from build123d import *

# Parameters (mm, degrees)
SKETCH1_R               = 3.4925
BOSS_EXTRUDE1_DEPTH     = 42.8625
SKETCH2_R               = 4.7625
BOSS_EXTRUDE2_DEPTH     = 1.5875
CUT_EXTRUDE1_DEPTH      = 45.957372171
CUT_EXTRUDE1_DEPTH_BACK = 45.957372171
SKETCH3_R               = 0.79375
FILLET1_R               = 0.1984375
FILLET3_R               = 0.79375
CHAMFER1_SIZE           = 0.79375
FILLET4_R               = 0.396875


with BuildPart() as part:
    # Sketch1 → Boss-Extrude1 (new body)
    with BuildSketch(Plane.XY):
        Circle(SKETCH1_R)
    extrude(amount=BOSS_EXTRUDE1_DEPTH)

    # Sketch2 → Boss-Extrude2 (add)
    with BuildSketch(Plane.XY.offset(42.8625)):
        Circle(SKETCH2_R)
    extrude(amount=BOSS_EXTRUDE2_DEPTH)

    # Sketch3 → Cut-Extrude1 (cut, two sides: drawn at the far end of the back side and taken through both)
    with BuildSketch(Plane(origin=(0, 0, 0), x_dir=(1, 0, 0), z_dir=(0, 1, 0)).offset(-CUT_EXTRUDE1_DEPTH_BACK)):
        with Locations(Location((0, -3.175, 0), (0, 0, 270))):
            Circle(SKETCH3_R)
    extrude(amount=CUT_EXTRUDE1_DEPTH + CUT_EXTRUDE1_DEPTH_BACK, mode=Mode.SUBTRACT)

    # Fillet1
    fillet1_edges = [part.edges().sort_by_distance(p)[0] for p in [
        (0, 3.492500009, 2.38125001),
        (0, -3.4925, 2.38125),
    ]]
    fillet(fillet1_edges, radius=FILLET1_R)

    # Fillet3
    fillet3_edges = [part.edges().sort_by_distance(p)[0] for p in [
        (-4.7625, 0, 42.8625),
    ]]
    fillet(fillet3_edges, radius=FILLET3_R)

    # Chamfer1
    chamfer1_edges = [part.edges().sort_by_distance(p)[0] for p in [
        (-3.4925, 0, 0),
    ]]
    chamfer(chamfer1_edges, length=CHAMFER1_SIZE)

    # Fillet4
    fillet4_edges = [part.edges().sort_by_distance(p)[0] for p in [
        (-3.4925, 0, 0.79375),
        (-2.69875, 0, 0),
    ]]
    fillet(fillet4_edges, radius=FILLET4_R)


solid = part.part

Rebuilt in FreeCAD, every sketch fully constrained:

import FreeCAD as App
import Part
import Sketcher
Q = App.Units.Quantity


def edges_at(feature, points):
    """Names of the edges that pass closest to the given points."""
    edges = feature.Shape.Edges
    near = lambda p: min(range(len(edges)), key=lambda i: edges[i].distToShape(Part.Vertex(*p))[0])
    return sorted({f"Edge{near(p) + 1}" for p in points})

doc = App.newDocument("Part")
body = doc.addObject("PartDesign::Body", "Body")

sketch1 = doc.addObject("Sketcher::SketchObject", "Sketch")
body.addObject(sketch1)
sketch1.AttachmentSupport = (doc.XY_Plane, [""])
sketch1.MapMode = "FlatFace"
sketch1.addGeometry(Part.Circle(App.Vector(0, 0, 0), App.Vector(0, 0, 1), 3.5), False)
sketch1.addConstraint(Sketcher.Constraint("Coincident", 0, 3, -1, 1))
sketch1.addConstraint(Sketcher.Constraint("Diameter", 0, Q("0.275 in")))
pad1 = doc.addObject("PartDesign::Pad", "Pad")
body.addObject(pad1)
pad1.Profile = sketch1
pad1.Length = Q("1.6875 in")

sketch2 = doc.addObject("Sketcher::SketchObject", "Sketch001")
body.addObject(sketch2)
sketch2.AttachmentSupport = (doc.XY_Plane, [""])
sketch2.MapMode = "FlatFace"
sketch2.AttachmentOffset = App.Placement(App.Vector(0, 0, 1.6875 * 25.4), App.Rotation())
sketch2.addGeometry(Part.Circle(App.Vector(0, 0, 0), App.Vector(0, 0, 1), 4.8), False)
sketch2.addConstraint(Sketcher.Constraint("Coincident", 0, 3, -1, 1))
sketch2.addConstraint(Sketcher.Constraint("Diameter", 0, Q("0.375 in")))
pad2 = doc.addObject("PartDesign::Pad", "Pad001")
body.addObject(pad2)
pad2.Profile = sketch2
pad2.Length = Q("0.0625 in")

sketch3 = doc.addObject("Sketcher::SketchObject", "Sketch002")
body.addObject(sketch3)
sketch3.AttachmentSupport = (doc.XZ_Plane, [""])
sketch3.MapMode = "FlatFace"
sketch3.addGeometry(Part.Circle(App.Vector(0, 3.2, 0), App.Vector(0, 0, 1), 0.8), False)
sketch3.addConstraint(Sketcher.Constraint("PointOnObject", 0, 3, -2))
sketch3.addConstraint(Sketcher.Constraint("Diameter", 0, Q("0.0625 in")))
sketch3.addConstraint(Sketcher.Constraint("DistanceY", -1, 1, 0, 3, Q("0.125 in")))
pocket1 = doc.addObject("PartDesign::Pocket", "Pocket")
body.addObject(pocket1)
pocket1.Profile = sketch3
pocket1.Type = "ThroughAll"
pocket1.Midplane = True
doc.recompute()

fillet = doc.addObject("PartDesign::Fillet", "Fillet")
body.addObject(fillet)
fillet.Base = (pocket1, edges_at(pocket1, [(0, 3.493, 2.381), (0, -3.493, 2.381)]))
fillet.Radius = 0.198437
doc.recompute()

fillet2 = doc.addObject("PartDesign::Fillet", "Fillet001")
body.addObject(fillet2)
fillet2.Base = (fillet, edges_at(fillet, [(-4.763, 0, 42.862)]))
fillet2.Radius = Q("0.03125 in")
doc.recompute()

chamfer = doc.addObject("PartDesign::Chamfer", "Chamfer")
body.addObject(chamfer)
chamfer.Base = (fillet2, edges_at(fillet2, [(-3.493, 0, 0)]))
chamfer.Size = Q("0.03125 in")
doc.recompute()

fillet3 = doc.addObject("PartDesign::Fillet", "Fillet002")
body.addObject(fillet3)
fillet3.Base = (chamfer, edges_at(chamfer, [(-3.493, 0, 0.794), (-2.699, 0, 0)]))
fillet3.Radius = Q("0.015625 in")

doc.recompute()
